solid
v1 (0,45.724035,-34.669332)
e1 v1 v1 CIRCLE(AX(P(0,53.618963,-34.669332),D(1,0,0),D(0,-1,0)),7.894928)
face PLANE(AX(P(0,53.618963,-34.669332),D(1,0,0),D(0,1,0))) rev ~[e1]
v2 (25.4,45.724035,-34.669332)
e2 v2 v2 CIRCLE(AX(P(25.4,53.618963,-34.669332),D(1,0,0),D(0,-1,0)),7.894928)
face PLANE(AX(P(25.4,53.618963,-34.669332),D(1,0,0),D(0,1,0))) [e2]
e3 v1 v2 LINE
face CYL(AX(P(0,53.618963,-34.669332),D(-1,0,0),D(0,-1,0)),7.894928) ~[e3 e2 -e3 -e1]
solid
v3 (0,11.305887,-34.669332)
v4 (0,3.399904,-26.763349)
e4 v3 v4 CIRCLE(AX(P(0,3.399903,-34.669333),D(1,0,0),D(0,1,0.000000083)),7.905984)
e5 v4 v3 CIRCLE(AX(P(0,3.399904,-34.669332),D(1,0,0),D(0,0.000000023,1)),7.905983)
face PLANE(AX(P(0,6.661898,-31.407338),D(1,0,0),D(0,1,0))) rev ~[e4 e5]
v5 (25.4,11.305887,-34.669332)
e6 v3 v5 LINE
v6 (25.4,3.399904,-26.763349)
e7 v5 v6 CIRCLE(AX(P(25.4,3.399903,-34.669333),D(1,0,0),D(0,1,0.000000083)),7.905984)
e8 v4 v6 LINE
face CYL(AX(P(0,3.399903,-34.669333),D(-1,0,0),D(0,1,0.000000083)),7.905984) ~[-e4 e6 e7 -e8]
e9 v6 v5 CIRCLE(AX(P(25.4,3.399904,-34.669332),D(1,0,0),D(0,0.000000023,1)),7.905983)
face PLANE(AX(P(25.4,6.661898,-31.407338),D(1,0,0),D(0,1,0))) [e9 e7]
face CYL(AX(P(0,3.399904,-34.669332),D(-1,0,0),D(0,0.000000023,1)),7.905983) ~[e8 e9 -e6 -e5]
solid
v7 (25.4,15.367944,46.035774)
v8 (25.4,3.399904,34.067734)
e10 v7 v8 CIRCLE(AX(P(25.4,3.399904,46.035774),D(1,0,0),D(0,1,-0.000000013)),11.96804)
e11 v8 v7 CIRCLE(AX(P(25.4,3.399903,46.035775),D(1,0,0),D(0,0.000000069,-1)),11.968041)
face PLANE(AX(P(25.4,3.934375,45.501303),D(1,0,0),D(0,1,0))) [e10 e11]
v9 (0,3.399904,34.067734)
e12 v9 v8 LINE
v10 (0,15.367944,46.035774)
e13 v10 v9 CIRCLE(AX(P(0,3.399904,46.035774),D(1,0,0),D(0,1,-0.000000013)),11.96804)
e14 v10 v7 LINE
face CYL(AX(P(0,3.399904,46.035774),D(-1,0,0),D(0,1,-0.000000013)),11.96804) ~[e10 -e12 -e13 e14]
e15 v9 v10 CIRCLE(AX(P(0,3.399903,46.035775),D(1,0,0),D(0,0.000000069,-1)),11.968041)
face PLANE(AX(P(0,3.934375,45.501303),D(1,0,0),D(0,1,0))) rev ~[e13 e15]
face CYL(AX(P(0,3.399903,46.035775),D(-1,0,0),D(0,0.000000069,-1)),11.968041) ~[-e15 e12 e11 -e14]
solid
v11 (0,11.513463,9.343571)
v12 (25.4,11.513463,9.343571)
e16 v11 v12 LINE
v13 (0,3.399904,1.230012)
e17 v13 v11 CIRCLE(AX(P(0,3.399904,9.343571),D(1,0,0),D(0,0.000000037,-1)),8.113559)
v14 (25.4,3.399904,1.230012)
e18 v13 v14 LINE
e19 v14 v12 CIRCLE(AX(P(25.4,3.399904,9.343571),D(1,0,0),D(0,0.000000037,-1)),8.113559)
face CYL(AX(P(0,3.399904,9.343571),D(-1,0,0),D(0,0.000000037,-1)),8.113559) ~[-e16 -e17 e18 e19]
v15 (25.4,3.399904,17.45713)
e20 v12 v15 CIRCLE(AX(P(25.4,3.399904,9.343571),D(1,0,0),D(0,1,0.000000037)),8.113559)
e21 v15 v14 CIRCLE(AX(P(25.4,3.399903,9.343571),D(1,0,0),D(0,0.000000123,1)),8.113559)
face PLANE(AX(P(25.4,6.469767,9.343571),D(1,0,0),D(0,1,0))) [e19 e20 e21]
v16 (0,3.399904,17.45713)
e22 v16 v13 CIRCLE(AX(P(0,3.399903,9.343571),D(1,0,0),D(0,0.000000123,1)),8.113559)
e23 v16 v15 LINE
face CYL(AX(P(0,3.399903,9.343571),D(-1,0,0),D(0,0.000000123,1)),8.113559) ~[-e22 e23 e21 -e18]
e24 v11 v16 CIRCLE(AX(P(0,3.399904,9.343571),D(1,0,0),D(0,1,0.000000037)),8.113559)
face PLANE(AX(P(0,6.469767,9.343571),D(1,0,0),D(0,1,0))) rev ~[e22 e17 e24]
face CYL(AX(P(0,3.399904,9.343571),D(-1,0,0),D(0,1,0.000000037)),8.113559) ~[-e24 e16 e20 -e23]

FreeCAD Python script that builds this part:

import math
import FreeCAD as App
import Part
import Sketcher

V = App.Vector
Q = App.Units.Quantity

doc = App.newDocument("Part")
body = doc.addObject("PartDesign::Body", "Body")
body.AllowCompound = True

# Sketch on YZ plane
sketch1 = body.newObject("Sketcher::SketchObject", "Sketch")
sketch1.AttachmentSupport = (doc.getObject("YZ_Plane"), [""])
sketch1.MapMode = "FlatFace"
sketch1.addGeometry([
    Part.Circle(V(54, -35, 0), V(0, 0, 1), 8),  # 0
    Part.ArcOfCircle(Part.Circle(V(3, -35, 0), V(0, 0, 1), 8), math.radians(0), math.radians(90)),  # 1
    Part.ArcOfCircle(Part.Circle(V(3, -35, 0), V(0, 0, 1), 8), math.radians(90), math.radians(360)),  # 2
    Part.ArcOfCircle(Part.Circle(V(3, 9, 0), V(0, 0, 1), 8), math.radians(0), math.radians(90)),  # 3
    Part.ArcOfCircle(Part.Circle(V(3, 9, 0), V(0, 0, 1), 8), math.radians(90), math.radians(270)),  # 4
    Part.ArcOfCircle(Part.Circle(V(3, 9, 0), V(0, 0, 1), 8), math.radians(-90), math.radians(0)),  # 5
    Part.ArcOfCircle(Part.Circle(V(3, 46, 0), V(0, 0, 1), 12), math.radians(0), math.radians(270)),  # 6
    Part.ArcOfCircle(Part.Circle(V(3, 46, 0), V(0, 0, 1), 12), math.radians(-90), math.radians(0)),  # 7
], False)
sketch1.addConstraint([
    Sketcher.Constraint("Tangent", 1, 1, 2, 2),
    Sketcher.Constraint("Coincident", 2, 1, 1, 2),
    Sketcher.Constraint("Tangent", 3, 2, 4, 1),
    Sketcher.Constraint("Tangent", 4, 2, 5, 1),
    Sketcher.Constraint("Tangent", 5, 2, 3, 1),
    Sketcher.Constraint("Tangent", 6, 1, 7, 2),
    Sketcher.Constraint("Coincident", 7, 1, 6, 2),
    Sketcher.Constraint("Horizontal", 0, 3, 1, 3),
    Sketcher.Constraint("Horizontal", 2, 3, 1, 1),
    Sketcher.Constraint("Horizontal", 4, 3, 5, 2),
    Sketcher.Constraint("Horizontal", 7, 3, 6, 1),
    Sketcher.Constraint("Vertical", 2, 3, 3, 3),
    Sketcher.Constraint("Vertical", 5, 3, 6, 3),
    Sketcher.Constraint("Vertical", 7, 3, 2, 1),
    Sketcher.Constraint("Vertical", 2, 1, 3, 2),
    Sketcher.Constraint("Vertical", 3, 2, 4, 2),
    Sketcher.Constraint("Vertical", 4, 2, 7, 1),
    Sketcher.Constraint("Radius", 3, Q("8.113559 mm")),
    Sketcher.Constraint("Radius", 6, Q("11.96804 mm")),
    Sketcher.Constraint("Diameter", 0, Q("15.789856 mm")),
    Sketcher.Constraint("Radius", 1, Q("7.905984 mm")),
    Sketcher.Constraint("DistanceY", 0, 3, -1, 1, Q("34.669332 mm")),
    Sketcher.Constraint("DistanceY", -1, 1, 3, 3, Q("9.343571 mm")),
    Sketcher.Constraint("DistanceX", 1, 3, 0, 3, Q("50.21906 mm")),
    Sketcher.Constraint("DistanceX", -1, 1, 0, 3, Q("53.618963 mm")),
    Sketcher.Constraint("DistanceY", -1, 1, 6, 3, Q("46.035774 mm")),
])
pad1 = body.newObject("PartDesign::Pad", "Pad")
pad1.Profile = sketch1
pad1.Length = Q("1 in")

doc.recompute()
